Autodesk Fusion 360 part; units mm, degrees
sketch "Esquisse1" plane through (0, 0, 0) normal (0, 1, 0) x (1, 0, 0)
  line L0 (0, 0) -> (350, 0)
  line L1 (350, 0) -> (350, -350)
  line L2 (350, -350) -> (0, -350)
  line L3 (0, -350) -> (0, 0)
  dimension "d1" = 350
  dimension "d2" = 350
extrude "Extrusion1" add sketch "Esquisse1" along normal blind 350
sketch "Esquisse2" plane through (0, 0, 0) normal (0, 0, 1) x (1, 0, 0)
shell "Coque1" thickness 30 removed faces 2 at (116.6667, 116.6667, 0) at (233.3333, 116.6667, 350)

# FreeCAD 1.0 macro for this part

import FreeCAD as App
import Part
import Sketcher


def faces_at(feature, points):
    """Names of the faces that lie closest to the given points."""
    faces = feature.Shape.Faces
    near = lambda p: min(range(len(faces)), key=lambda i: faces[i].distToShape(Part.Vertex(*p))[0])
    return sorted({f"Face{near(p) + 1}" for p in points})


def add_polygon(sketch, points):
    """Adds a closed chain of lines whose ends are joined by coincident constraints."""
    first, n = sketch.GeometryCount, len(points)
    for a, b in zip(points, points[1:] + points[:1]):
        sketch.addGeometry(Part.LineSegment(App.Vector(*a, 0), App.Vector(*b, 0)), False)
    for i in range(n):
        sketch.addConstraint(Sketcher.Constraint("Coincident", first + i, 2, first + (i + 1) % n, 1))

doc = App.newDocument("Part")
body = doc.addObject("PartDesign::Body", "Body")

# Sketch on XZ plane
sketch1 = doc.addObject("Sketcher::SketchObject", "Sketch")
body.addObject(sketch1)
sketch1.AttachmentSupport = (doc.XZ_Plane, [""])
sketch1.MapMode = "FlatFace"
add_polygon(sketch1, [(350, 0), (0, 0), (0, 350), (350, 350)])  # lines 0-3
sketch1.addConstraint([
    Sketcher.Constraint("Horizontal", 0),
    Sketcher.Constraint("Vertical", 1),
    Sketcher.Constraint("Horizontal", 2),
    Sketcher.Constraint("Vertical", 3),
    Sketcher.Constraint("Coincident", 0, 2, -1, 1),
    Sketcher.Constraint("Equal", 2, 1),
    Sketcher.Constraint("DistanceX", 0, 2, 0, 1, 350.0),
])
pad1 = doc.addObject("PartDesign::Pad", "Pad")
body.addObject(pad1)
pad1.Profile = sketch1
pad1.Length = 350
pad1.Reversed = True
doc.recompute()

thickness = doc.addObject("PartDesign::Thickness", "Thickness")
body.addObject(thickness)
thickness.Base = (pad1, faces_at(pad1, [(116.667, 116.667, 0), (233.333, 116.667, 350)]))
thickness.Value = 30
thickness.Reversed = True
thickness.Join = "Intersection"

doc.recompute()
